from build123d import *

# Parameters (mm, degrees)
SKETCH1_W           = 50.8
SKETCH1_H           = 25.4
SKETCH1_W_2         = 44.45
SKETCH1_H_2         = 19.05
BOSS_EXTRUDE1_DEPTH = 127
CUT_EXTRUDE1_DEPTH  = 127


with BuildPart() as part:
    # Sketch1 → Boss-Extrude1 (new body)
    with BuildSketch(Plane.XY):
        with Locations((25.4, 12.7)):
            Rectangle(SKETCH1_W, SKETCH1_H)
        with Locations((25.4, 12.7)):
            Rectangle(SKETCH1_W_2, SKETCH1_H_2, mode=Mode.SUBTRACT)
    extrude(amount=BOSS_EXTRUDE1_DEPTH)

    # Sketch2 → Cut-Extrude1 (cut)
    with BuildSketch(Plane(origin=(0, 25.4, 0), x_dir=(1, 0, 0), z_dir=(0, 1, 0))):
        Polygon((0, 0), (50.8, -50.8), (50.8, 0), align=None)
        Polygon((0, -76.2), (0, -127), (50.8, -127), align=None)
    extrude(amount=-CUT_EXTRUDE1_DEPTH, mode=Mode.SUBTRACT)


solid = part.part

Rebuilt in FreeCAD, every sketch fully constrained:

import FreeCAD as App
import Part
import Sketcher
from FreeCAD import Vector
Q = App.Units.Quantity


def add_polygon(sketch, points):
    """Adds a closed chain of lines whose ends are joined by coincident constraints."""
    first, n = sketch.GeometryCount, len(points)
    for a, b in zip(points, points[1:] + points[:1]):
        sketch.addGeometry(Part.LineSegment(App.Vector(*a, 0), App.Vector(*b, 0)), False)
    for i in range(n):
        sketch.addConstraint(Sketcher.Constraint("Coincident", first + i, 2, first + (i + 1) % n, 1))

doc = App.newDocument("Part")
body = doc.addObject("PartDesign::Body", "Body")

# Sketch on XY plane
sketch1 = body.newObject("Sketcher::SketchObject", "Sketch")
sketch1.AttachmentSupport = (doc.getObject("XY_Plane"), [""])
sketch1.MapMode = "FlatFace"
add_polygon(sketch1, [(0, 25), (0, 0), (51, 0), (51, 25)])  # lines 0-3
add_polygon(sketch1, [(48, 3), (3, 3), (3, 22), (48, 22)])  # lines 4-7
sketch1.addConstraint(Sketcher.Constraint("Vertical", 0))
sketch1.addConstraint(Sketcher.Constraint("Horizontal", 1))
sketch1.addConstraint(Sketcher.Constraint("Vertical", 2))
sketch1.addConstraint(Sketcher.Constraint("Horizontal", 3))
sketch1.addConstraint(Sketcher.Constraint("Horizontal", 4))
sketch1.addConstraint(Sketcher.Constraint("Vertical", 5))
sketch1.addConstraint(Sketcher.Constraint("Horizontal", 6))
sketch1.addConstraint(Sketcher.Constraint("Vertical", 7))
sketch1.addConstraint(Sketcher.Constraint("Coincident", 0, 2, -1, 1))
sketch1.addConstraint(Sketcher.Constraint("DistanceX", 1, 1, 1, 2, Q("2 in")))
sketch1.addConstraint(Sketcher.Constraint("DistanceY", 0, 2, 0, 1, Q("1 in")))
sketch1.addConstraint(Sketcher.Constraint("DistanceX", 4, 2, 4, 1, Q("1.75 in")))
sketch1.addConstraint(Sketcher.Constraint("DistanceY", 5, 1, 5, 2, Q("0.75 in")))
sketch1.addConstraint(Sketcher.Constraint("DistanceX", -1, 1, 4, 2, Q("0.125 in")))
sketch1.addConstraint(Sketcher.Constraint("DistanceY", -1, 1, 4, 2, Q("0.125 in")))
pad1 = body.newObject("PartDesign::Pad", "Pad")
pad1.Profile = sketch1
pad1.Length = Q("5 in")

# Sketch on XZ plane
sketch2 = body.newObject("Sketcher::SketchObject", "Sketch001")
sketch2.AttachmentSupport = (doc.getObject("XZ_Plane"), [""])
sketch2.MapMode = "FlatFace"
sketch2.AttachmentOffset = App.Placement(Vector(0, 0, -1 * 25.4), App.Rotation())
add_polygon(sketch2, [(0, 0), (51, 51), (51, 0)])  # lines 0-2
add_polygon(sketch2, [(0, 76), (0, 127), (51, 127)])  # lines 3-5
sketch2.addConstraint(Sketcher.Constraint("Vertical", 1))
sketch2.addConstraint(Sketcher.Constraint("Horizontal", 2))
sketch2.addConstraint(Sketcher.Constraint("Vertical", 3))
sketch2.addConstraint(Sketcher.Constraint("Horizontal", 4))
sketch2.addConstraint(Sketcher.Constraint("Coincident", 2, 2, -1, 1))
sketch2.addConstraint(Sketcher.Constraint("PointOnObject", 3, 2, -2))
sketch2.addConstraint(Sketcher.Constraint("Parallel", 0, 5))
sketch2.addConstraint(Sketcher.Constraint("Vertical", 1, 2, 4, 2))
sketch2.addConstraint(Sketcher.Constraint("Equal", 4, 1))
sketch2.addConstraint(Sketcher.Constraint("DistanceX", 2, 2, 2, 1, Q("2 in")))
sketch2.addConstraint(Sketcher.Constraint("DistanceY", -1, 1, 3, 2, Q("5 in")))
pocket1 = body.newObject("PartDesign::Pocket", "Pocket")
pocket1.Profile = sketch2
pocket1.Length = Q("5 in")
pocket1.Reversed = True

doc.recompute()
